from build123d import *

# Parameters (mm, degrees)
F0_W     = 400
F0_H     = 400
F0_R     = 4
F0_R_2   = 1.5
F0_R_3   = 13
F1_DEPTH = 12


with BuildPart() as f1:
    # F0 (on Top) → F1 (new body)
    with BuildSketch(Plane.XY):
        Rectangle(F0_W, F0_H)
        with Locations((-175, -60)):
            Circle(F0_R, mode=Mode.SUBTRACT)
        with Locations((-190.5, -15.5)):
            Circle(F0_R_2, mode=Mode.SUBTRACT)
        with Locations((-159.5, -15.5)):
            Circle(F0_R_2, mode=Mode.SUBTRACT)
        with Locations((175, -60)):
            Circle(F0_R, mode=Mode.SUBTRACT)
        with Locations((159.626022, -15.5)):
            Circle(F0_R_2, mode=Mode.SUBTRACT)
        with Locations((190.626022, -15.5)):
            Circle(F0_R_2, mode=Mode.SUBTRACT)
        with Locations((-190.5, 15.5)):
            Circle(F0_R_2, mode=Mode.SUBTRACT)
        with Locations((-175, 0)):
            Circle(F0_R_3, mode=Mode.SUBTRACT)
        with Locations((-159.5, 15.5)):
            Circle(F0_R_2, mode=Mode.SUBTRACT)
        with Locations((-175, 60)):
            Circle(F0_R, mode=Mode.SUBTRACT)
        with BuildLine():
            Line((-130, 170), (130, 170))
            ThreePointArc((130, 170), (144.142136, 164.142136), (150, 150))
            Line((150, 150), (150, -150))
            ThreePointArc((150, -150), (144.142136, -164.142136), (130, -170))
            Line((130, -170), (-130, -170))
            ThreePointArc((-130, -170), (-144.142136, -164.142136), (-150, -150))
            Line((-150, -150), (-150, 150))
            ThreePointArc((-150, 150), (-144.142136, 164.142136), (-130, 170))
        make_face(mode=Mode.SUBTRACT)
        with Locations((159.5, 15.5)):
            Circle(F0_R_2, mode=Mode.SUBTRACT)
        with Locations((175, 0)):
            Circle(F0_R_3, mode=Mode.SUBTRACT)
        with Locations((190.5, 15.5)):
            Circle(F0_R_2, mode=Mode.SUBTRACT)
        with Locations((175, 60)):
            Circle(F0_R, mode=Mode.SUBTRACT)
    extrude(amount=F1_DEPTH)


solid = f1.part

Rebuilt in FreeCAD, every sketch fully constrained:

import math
import FreeCAD as App
import Part
import Sketcher

doc = App.newDocument("Part")
body = doc.addObject("PartDesign::Body", "Body")

sketch1 = doc.addObject("Sketcher::SketchObject", "Sketch")
body.addObject(sketch1)
sketch1.AttachmentSupport = (doc.XY_Plane, [""])
sketch1.MapMode = "FlatFace"
sketch1.addGeometry([
    Part.LineSegment(App.Vector(-200, 200, 0), App.Vector(-200, -200, 0)),
    Part.LineSegment(App.Vector(-200, -200, 0), App.Vector(200, -200, 0)),
    Part.LineSegment(App.Vector(200, -200, 0), App.Vector(200, 200, 0)),
    Part.LineSegment(App.Vector(200, 200, 0), App.Vector(-200, 200, 0)),
    Part.Circle(App.Vector(-175, -60, 0), App.Vector(0, 0, 1), 4),
    Part.Circle(App.Vector(-190.5, -15.5, 0), App.Vector(0, 0, 1), 1.5),
    Part.Circle(App.Vector(-159.5, -15.5, 0), App.Vector(0, 0, 1), 1.5),
    Part.Circle(App.Vector(175, -60, 0), App.Vector(0, 0, 1), 4),
    Part.Circle(App.Vector(159.6, -15.5, 0), App.Vector(0, 0, 1), 1.5),
    Part.Circle(App.Vector(190.6, -15.5, 0), App.Vector(0, 0, 1), 1.5),
    Part.Circle(App.Vector(-175, 0, 0), App.Vector(0, 0, 1), 13),
    Part.Circle(App.Vector(-190.5, 15.5, 0), App.Vector(0, 0, 1), 1.5),
    Part.Circle(App.Vector(-159.5, 15.5, 0), App.Vector(0, 0, 1), 1.5),
    Part.Circle(App.Vector(-175, 60, 0), App.Vector(0, 0, 1), 4),
    Part.ArcOfCircle(Part.Circle(App.Vector(-130, 150, 0), App.Vector(0, 0, 1), 20), math.radians(90), math.radians(180)),
    Part.LineSegment(App.Vector(-130, 170, 0), App.Vector(130, 170, 0)),
    Part.ArcOfCircle(Part.Circle(App.Vector(130, 150, 0), App.Vector(0, 0, 1), 20), math.radians(0), math.radians(90)),
    Part.LineSegment(App.Vector(150, 150, 0), App.Vector(150, -150, 0)),
    Part.ArcOfCircle(Part.Circle(App.Vector(130, -150, 0), App.Vector(0, 0, 1), 20), math.radians(-90), math.radians(0)),
    Part.LineSegment(App.Vector(130, -170, 0), App.Vector(-130, -170, 0)),
    Part.ArcOfCircle(Part.Circle(App.Vector(-130, -150, 0), App.Vector(0, 0, 1), 20), math.radians(180), math.radians(270)),
    Part.LineSegment(App.Vector(-150, -150, 0), App.Vector(-150, 150, 0)),
    Part.Circle(App.Vector(159.5, 15.5, 0), App.Vector(0, 0, 1), 1.5),
    Part.Circle(App.Vector(175, 0, 0), App.Vector(0, 0, 1), 13),
    Part.Circle(App.Vector(190.5, 15.5, 0), App.Vector(0, 0, 1), 1.5),
    Part.Circle(App.Vector(175, 60, 0), App.Vector(0, 0, 1), 4),
], False)
sketch1.addConstraint([
    Sketcher.Constraint("Coincident", 0, 2, 1, 1),
    Sketcher.Constraint("Coincident", 1, 2, 2, 1),
    Sketcher.Constraint("Coincident", 2, 2, 3, 1),
    Sketcher.Constraint("Coincident", 3, 2, 0, 1),
    Sketcher.Constraint("Tangent", 14, 1, 15, 1),
    Sketcher.Constraint("Tangent", 15, 2, 16, 2),
    Sketcher.Constraint("Tangent", 16, 1, 17, 1),
    Sketcher.Constraint("Tangent", 17, 2, 18, 2),
    Sketcher.Constraint("Tangent", 18, 1, 19, 1),
    Sketcher.Constraint("Tangent", 19, 2, 20, 2),
    Sketcher.Constraint("Tangent", 20, 1, 21, 1),
    Sketcher.Constraint("Tangent", 21, 2, 14, 2),
    Sketcher.Constraint("Vertical", 0),
    Sketcher.Constraint("Horizontal", 1),
    Sketcher.Constraint("Vertical", 2),
    Sketcher.Constraint("Horizontal", 3),
    Sketcher.Constraint("Horizontal", 15),
    Sketcher.Constraint("Vertical", 17),
    Sketcher.Constraint("Horizontal", 19),
    Sketcher.Constraint("Vertical", 21),
    Sketcher.Constraint("Equal", 5, 6),
    Sketcher.Constraint("Equal", 4, 7),
    Sketcher.Constraint("Equal", 6, 8),
    Sketcher.Constraint("Equal", 8, 9),
    Sketcher.Constraint("Equal", 9, 11),
    Sketcher.Constraint("Equal", 11, 12),
    Sketcher.Constraint("Equal", 7, 13),
    Sketcher.Constraint("Equal", 14, 16),
    Sketcher.Constraint("Equal", 16, 18),
    Sketcher.Constraint("Equal", 18, 20),
    Sketcher.Constraint("Equal", 12, 22),
    Sketcher.Constraint("Equal", 10, 23),
    Sketcher.Constraint("Equal", 22, 24),
    Sketcher.Constraint("Equal", 13, 25),
    Sketcher.Constraint("Symmetric", 7, 3, 13, 3, -1, 1),
    Sketcher.Constraint("Symmetric", 14, 3, 18, 3, -1, 1),
    Sketcher.Constraint("Symmetric", 6, 3, 22, 3, -1, 1),
    Sketcher.Constraint("Symmetric", 10, 3, 23, 3, -1, 1),
    Sketcher.Constraint("Symmetric", 5, 3, 24, 3, -1, 1),
    Sketcher.Constraint("Symmetric", 4, 3, 25, 3, -1, 1),
    Sketcher.Constraint("Symmetric", 0, 2, 2, 2, -1, 1),
    Sketcher.Constraint("Symmetric", 4, 3, 7, 3, -2),
    Sketcher.Constraint("Symmetric", 12, 3, 22, 3, -2),
    Sketcher.Constraint("Symmetric", 11, 3, 24, 3, -2),
    Sketcher.Constraint("PointOnObject", 10, 3, -1),
    Sketcher.Constraint("Horizontal", 5, 3, 6, 3),
    Sketcher.Constraint("Horizontal", 6, 3, 8, 3),
    Sketcher.Constraint("Horizontal", 8, 3, 9, 3),
    Sketcher.Constraint("Vertical", 4, 3, 10, 3),
    Sketcher.Constraint("Equal", 3, 0),
    Sketcher.Constraint("Diameter", 4, 8.0),
    Sketcher.Constraint("Diameter", 5, 3.0),
    Sketcher.Constraint("Diameter", 10, 26.0),
    Sketcher.Constraint("Radius", 14, 19.999999),
    Sketcher.Constraint("DistanceX", 1, 1, 1, 2, 400.0),
    Sketcher.Constraint("DistanceX", 15, 1, 15, 2, 260.0),
    Sketcher.Constraint("DistanceY", 17, 2, 17, 1, 300.0),
    Sketcher.Constraint("DistanceX", 4, 3, -1, 1, 175.0),
    Sketcher.Constraint("DistanceY", 4, 3, -1, 1, 60.0),
    Sketcher.Constraint("DistanceX", 5, 3, 6, 3, 31.0),
    Sketcher.Constraint("DistanceX", 8, 3, 9, 3, 31.0),
    Sketcher.Constraint("DistanceY", 5, 3, 11, 3, 31.0),
    Sketcher.Constraint("DistanceX", 5, 3, -1, 1, 190.5),
    Sketcher.Constraint("DistanceX", -1, 1, 8, 3, 159.626022),
])
pad1 = doc.addObject("PartDesign::Pad", "Pad")
body.addObject(pad1)
pad1.Profile = sketch1
pad1.Length = 12

doc.recompute()
